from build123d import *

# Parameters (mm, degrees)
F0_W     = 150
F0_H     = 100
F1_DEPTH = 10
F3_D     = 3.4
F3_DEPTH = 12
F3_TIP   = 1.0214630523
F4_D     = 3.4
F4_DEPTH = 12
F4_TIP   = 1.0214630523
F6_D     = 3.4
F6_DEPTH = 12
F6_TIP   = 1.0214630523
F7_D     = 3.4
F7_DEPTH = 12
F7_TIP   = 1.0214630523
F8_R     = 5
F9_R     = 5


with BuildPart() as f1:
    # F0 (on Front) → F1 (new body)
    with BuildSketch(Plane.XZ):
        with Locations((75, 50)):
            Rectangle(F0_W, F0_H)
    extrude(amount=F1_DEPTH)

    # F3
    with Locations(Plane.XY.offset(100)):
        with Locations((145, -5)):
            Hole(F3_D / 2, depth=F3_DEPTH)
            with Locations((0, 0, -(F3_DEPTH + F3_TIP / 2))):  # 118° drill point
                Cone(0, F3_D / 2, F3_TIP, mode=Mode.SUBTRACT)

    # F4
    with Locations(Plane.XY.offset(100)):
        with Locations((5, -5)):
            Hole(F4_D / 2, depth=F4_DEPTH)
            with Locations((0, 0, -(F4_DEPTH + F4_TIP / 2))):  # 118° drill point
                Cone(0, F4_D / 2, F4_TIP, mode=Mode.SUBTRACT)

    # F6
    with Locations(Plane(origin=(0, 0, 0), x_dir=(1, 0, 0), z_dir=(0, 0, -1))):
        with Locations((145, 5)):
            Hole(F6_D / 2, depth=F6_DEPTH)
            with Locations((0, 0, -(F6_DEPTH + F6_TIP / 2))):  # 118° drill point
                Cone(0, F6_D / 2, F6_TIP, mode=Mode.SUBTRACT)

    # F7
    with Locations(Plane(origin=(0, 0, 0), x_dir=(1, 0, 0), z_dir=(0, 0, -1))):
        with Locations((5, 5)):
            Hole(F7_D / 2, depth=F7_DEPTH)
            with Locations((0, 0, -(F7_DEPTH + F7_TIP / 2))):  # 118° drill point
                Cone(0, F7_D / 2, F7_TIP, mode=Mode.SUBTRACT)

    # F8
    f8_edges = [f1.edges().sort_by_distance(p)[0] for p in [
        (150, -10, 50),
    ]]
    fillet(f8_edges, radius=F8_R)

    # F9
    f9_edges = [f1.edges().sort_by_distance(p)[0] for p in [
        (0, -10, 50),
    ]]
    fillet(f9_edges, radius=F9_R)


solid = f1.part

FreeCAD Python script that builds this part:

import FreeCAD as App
import Part
import Sketcher

V = App.Vector


def edges_at(feature, points):
    """Names of the edges that pass closest to the given points."""
    edges = feature.Shape.Edges
    near = lambda p: min(range(len(edges)), key=lambda i: edges[i].distToShape(Part.Vertex(*p))[0])
    return sorted({f"Edge{near(p) + 1}" for p in points})


def add_polygon(sketch, points):
    """Adds a closed chain of lines whose ends are joined by coincident constraints."""
    first, n = sketch.GeometryCount, len(points)
    for a, b in zip(points, points[1:] + points[:1]):
        sketch.addGeometry(Part.LineSegment(App.Vector(*a, 0), App.Vector(*b, 0)), False)
    for i in range(n):
        sketch.addConstraint(Sketcher.Constraint("Coincident", first + i, 2, first + (i + 1) % n, 1))

doc = App.newDocument("Part")
body = doc.addObject("PartDesign::Body", "Body")

sketch1 = doc.addObject("Sketcher::SketchObject", "Sketch")
body.addObject(sketch1)
sketch1.AttachmentSupport = (doc.XZ_Plane, [""])
sketch1.MapMode = "FlatFace"
add_polygon(sketch1, [(0, 100), (0, 0), (150, 0), (150, 100)])
sketch1.addConstraint(Sketcher.Constraint("Vertical", 0))
sketch1.addConstraint(Sketcher.Constraint("Horizontal", 1))
sketch1.addConstraint(Sketcher.Constraint("Vertical", 2))
sketch1.addConstraint(Sketcher.Constraint("Horizontal", 3))
sketch1.addConstraint(Sketcher.Constraint("Coincident", 0, 2, -1, 1))
sketch1.addConstraint(Sketcher.Constraint("DistanceX", 1, 1, 1, 2, 150.0))
sketch1.addConstraint(Sketcher.Constraint("DistanceY", 0, 2, 0, 1, 100.0))
pad1 = doc.addObject("PartDesign::Pad", "Pad")
body.addObject(pad1)
pad1.Profile = sketch1
pad1.Length = 10

sketch2 = doc.addObject("Sketcher::SketchObject", "Sketch001")
body.addObject(sketch2)
sketch2.AttachmentSupport = (doc.XY_Plane, [""])
sketch2.MapMode = "FlatFace"
sketch2.AttachmentOffset = App.Placement(V(0, 0, 100), App.Rotation())
sketch2.addGeometry(Part.Circle(V(145, -5, 0), V(0, 0, 1), 1.7), False)
sketch2.addConstraint(Sketcher.Constraint("Diameter", 0, 3.4))
sketch2.addConstraint(Sketcher.Constraint("DistanceX", -1, 1, 0, 3, 145.0))
sketch2.addConstraint(Sketcher.Constraint("DistanceY", 0, 3, -1, 1, 5.0))
doc.recompute()
hole = doc.addObject("PartDesign::Hole", "Hole")
body.addObject(hole)
hole.Profile = sketch2
hole.ThreadType = "None"
hole.Diameter = 3.4
hole.DepthType = "Dimension"
hole.Depth = 12
hole.DrillPoint = "Angled"
hole.DrillPointAngle = 118

sketch3 = doc.addObject("Sketcher::SketchObject", "Sketch002")
body.addObject(sketch3)
sketch3.AttachmentSupport = (doc.XY_Plane, [""])
sketch3.MapMode = "FlatFace"
sketch3.AttachmentOffset = App.Placement(V(0, 0, 100), App.Rotation())
sketch3.addGeometry(Part.Circle(V(5, -5, 0), V(0, 0, 1), 1.7), False)
sketch3.addConstraint(Sketcher.Constraint("Diameter", 0, 3.4))
sketch3.addConstraint(Sketcher.Constraint("DistanceX", -1, 1, 0, 3, 5.0))
sketch3.addConstraint(Sketcher.Constraint("DistanceY", 0, 3, -1, 1, 5.0))
doc.recompute()
hole2 = doc.addObject("PartDesign::Hole", "Hole001")
body.addObject(hole2)
hole2.Profile = sketch3
hole2.ThreadType = "None"
hole2.Diameter = 3.4
hole2.DepthType = "Dimension"
hole2.Depth = 12
hole2.DrillPoint = "Angled"
hole2.DrillPointAngle = 118

sketch4 = doc.addObject("Sketcher::SketchObject", "Sketch003")
body.addObject(sketch4)
sketch4.AttachmentSupport = (doc.XY_Plane, [""])
sketch4.MapMode = "FlatFace"
sketch4.addGeometry(Part.Circle(V(145, -5, 0), V(0, 0, 1), 1.7), False)
sketch4.addConstraint(Sketcher.Constraint("Diameter", 0, 3.4))
sketch4.addConstraint(Sketcher.Constraint("DistanceX", -1, 1, 0, 3, 145.0))
sketch4.addConstraint(Sketcher.Constraint("DistanceY", 0, 3, -1, 1, 5.0))
doc.recompute()
hole3 = doc.addObject("PartDesign::Hole", "Hole002")
body.addObject(hole3)
hole3.Profile = sketch4
hole3.ThreadType = "None"
hole3.Diameter = 3.4
hole3.DepthType = "Dimension"
hole3.Depth = 12
hole3.DrillPoint = "Angled"
hole3.DrillPointAngle = 118
hole3.Reversed = True

sketch5 = doc.addObject("Sketcher::SketchObject", "Sketch004")
body.addObject(sketch5)
sketch5.AttachmentSupport = (doc.XY_Plane, [""])
sketch5.MapMode = "FlatFace"
sketch5.addGeometry(Part.Circle(V(5, -5, 0), V(0, 0, 1), 1.7), False)
sketch5.addConstraint(Sketcher.Constraint("Diameter", 0, 3.4))
sketch5.addConstraint(Sketcher.Constraint("DistanceX", -1, 1, 0, 3, 5.0))
sketch5.addConstraint(Sketcher.Constraint("DistanceY", 0, 3, -1, 1, 5.0))
doc.recompute()
hole4 = doc.addObject("PartDesign::Hole", "Hole003")
body.addObject(hole4)
hole4.Profile = sketch5
hole4.ThreadType = "None"
hole4.Diameter = 3.4
hole4.DepthType = "Dimension"
hole4.Depth = 12
hole4.DrillPoint = "Angled"
hole4.DrillPointAngle = 118
hole4.Reversed = True
doc.recompute()

fillet = doc.addObject("PartDesign::Fillet", "Fillet")
body.addObject(fillet)
fillet.Base = (hole4, edges_at(hole4, [(150, -10, 50)]))
fillet.Radius = 5
doc.recompute()

fillet2 = doc.addObject("PartDesign::Fillet", "Fillet001")
body.addObject(fillet2)
fillet2.Base = (fillet, edges_at(fillet, [(0, -10, 50)]))
fillet2.Radius = 5

doc.recompute()
